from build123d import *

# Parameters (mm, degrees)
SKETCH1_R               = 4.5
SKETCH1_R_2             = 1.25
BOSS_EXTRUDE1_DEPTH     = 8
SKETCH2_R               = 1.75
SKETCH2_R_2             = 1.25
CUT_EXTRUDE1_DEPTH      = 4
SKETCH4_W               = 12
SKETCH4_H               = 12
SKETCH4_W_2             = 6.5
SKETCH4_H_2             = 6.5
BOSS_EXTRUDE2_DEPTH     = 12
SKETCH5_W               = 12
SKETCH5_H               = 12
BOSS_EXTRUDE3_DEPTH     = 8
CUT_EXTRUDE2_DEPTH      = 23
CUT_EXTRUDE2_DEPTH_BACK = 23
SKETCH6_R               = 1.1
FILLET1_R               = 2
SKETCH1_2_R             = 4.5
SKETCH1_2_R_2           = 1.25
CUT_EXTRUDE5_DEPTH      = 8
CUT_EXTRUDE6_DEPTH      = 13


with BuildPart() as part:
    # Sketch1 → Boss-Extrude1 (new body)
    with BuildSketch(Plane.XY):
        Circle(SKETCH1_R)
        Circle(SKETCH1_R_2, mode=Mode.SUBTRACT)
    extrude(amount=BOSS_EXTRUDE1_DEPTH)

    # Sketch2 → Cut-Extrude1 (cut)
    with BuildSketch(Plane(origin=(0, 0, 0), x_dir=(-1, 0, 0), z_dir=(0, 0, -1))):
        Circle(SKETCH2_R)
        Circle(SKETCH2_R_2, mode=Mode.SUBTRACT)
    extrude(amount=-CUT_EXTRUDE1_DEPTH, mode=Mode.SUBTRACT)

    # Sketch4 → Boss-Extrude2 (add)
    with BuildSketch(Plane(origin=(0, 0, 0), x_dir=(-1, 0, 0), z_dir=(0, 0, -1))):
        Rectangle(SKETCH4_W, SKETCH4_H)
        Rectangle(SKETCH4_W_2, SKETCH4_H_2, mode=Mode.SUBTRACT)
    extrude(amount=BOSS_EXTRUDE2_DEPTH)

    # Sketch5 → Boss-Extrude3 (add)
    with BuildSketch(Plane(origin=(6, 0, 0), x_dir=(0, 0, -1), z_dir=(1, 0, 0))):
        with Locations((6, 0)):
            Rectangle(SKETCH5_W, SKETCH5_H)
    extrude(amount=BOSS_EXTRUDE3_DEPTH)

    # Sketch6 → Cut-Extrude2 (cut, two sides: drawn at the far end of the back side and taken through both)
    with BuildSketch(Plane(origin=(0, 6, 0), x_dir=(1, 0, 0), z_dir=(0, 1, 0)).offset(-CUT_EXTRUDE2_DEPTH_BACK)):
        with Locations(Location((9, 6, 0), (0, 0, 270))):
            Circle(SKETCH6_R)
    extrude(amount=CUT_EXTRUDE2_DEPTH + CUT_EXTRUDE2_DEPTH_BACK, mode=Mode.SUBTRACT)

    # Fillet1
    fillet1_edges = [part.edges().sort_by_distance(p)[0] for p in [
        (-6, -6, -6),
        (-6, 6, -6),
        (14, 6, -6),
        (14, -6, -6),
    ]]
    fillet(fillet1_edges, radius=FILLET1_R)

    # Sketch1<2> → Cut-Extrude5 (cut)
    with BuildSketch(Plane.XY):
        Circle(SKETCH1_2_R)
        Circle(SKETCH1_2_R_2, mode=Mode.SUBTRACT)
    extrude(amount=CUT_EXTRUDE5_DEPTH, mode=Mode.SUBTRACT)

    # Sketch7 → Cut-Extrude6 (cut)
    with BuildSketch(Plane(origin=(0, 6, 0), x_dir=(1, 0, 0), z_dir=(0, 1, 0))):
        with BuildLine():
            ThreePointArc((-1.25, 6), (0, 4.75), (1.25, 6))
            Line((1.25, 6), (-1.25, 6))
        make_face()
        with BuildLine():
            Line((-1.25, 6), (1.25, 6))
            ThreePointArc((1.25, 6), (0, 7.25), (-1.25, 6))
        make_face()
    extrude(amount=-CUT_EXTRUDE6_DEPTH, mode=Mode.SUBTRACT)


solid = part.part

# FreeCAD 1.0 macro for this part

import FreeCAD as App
import Part
import Sketcher


def edges_at(feature, points):
    """Names of the edges that pass closest to the given points."""
    edges = feature.Shape.Edges
    near = lambda p: min(range(len(edges)), key=lambda i: edges[i].distToShape(Part.Vertex(*p))[0])
    return sorted({f"Edge{near(p) + 1}" for p in points})

doc = App.newDocument("Part")
body = doc.addObject("PartDesign::Body", "Body")

# Sketch on XY plane
sketch1 = doc.addObject("Sketcher::SketchObject", "Sketch")
body.addObject(sketch1)
sketch1.AttachmentSupport = (doc.XY_Plane, [""])
sketch1.MapMode = "FlatFace"
sketch1.addGeometry(Part.Circle(App.Vector(0, 0, 0), App.Vector(0, 0, 1), 4.5), False)
sketch1.addGeometry(Part.Circle(App.Vector(0, 0, 0), App.Vector(0, 0, 1), 1.2), False)
sketch1.addConstraint(Sketcher.Constraint("Coincident", 0, 3, -1, 1))
sketch1.addConstraint(Sketcher.Constraint("Coincident", 1, 3, -1, 1))
sketch1.addConstraint(Sketcher.Constraint("Diameter", 0, 9.0))
sketch1.addConstraint(Sketcher.Constraint("Diameter", 1, 2.5))
pad1 = doc.addObject("PartDesign::Pad", "Pad")
body.addObject(pad1)
pad1.Profile = sketch1
pad1.Length = 8

# Sketch on XY plane
sketch2 = doc.addObject("Sketcher::SketchObject", "Sketch001")
body.addObject(sketch2)
sketch2.AttachmentSupport = (doc.XY_Plane, [""])
sketch2.MapMode = "FlatFace"
sketch2.addGeometry(Part.Circle(App.Vector(0, 0, 0), App.Vector(0, 0, 1), 1.8), False)
sketch2.addGeometry(Part.Circle(App.Vector(0, 0, 0), App.Vector(0, 0, 1), 1.2), False)
sketch2.addConstraint(Sketcher.Constraint("Coincident", 0, 3, -1, 1))
sketch2.addConstraint(Sketcher.Constraint("Coincident", 1, 3, -1, 1))
sketch2.addConstraint(Sketcher.Constraint("Diameter", 0, 3.5))
sketch2.addConstraint(Sketcher.Constraint("Diameter", 1, 2.5))
pocket1 = doc.addObject("PartDesign::Pocket", "Pocket")
body.addObject(pocket1)
pocket1.Profile = sketch2
pocket1.Length = 4
pocket1.Reversed = True

# Sketch on XY plane
sketch3 = doc.addObject("Sketcher::SketchObject", "Sketch002")
body.addObject(sketch3)
sketch3.AttachmentSupport = (doc.XY_Plane, [""])
sketch3.MapMode = "FlatFace"
sketch3.addGeometry(Part.LineSegment(App.Vector(6, 6, 0), App.Vector(6, -6, 0)), False)
sketch3.addGeometry(Part.LineSegment(App.Vector(6, -6, 0), App.Vector(-6, -6, 0)), False)
sketch3.addGeometry(Part.LineSegment(App.Vector(-6, -6, 0), App.Vector(-6, 6, 0)), False)
sketch3.addGeometry(Part.LineSegment(App.Vector(-6, 6, 0), App.Vector(6, 6, 0)), False)
sketch3.addGeometry(Part.LineSegment(App.Vector(-3, -3, 0), App.Vector(3, -3, 0)), False)
sketch3.addGeometry(Part.LineSegment(App.Vector(3, -3, 0), App.Vector(3, 3, 0)), False)
sketch3.addGeometry(Part.LineSegment(App.Vector(3, 3, 0), App.Vector(-3, 3, 0)), False)
sketch3.addGeometry(Part.LineSegment(App.Vector(-3, 3, 0), App.Vector(-3, -3, 0)), False)
sketch3.addConstraint(Sketcher.Constraint("Coincident", 0, 2, 1, 1))
sketch3.addConstraint(Sketcher.Constraint("Coincident", 1, 2, 2, 1))
sketch3.addConstraint(Sketcher.Constraint("Coincident", 2, 2, 3, 1))
sketch3.addConstraint(Sketcher.Constraint("Coincident", 3, 2, 0, 1))
sketch3.addConstraint(Sketcher.Constraint("Coincident", 4, 2, 5, 1))
sketch3.addConstraint(Sketcher.Constraint("Coincident", 5, 2, 6, 1))
sketch3.addConstraint(Sketcher.Constraint("Coincident", 6, 2, 7, 1))
sketch3.addConstraint(Sketcher.Constraint("Coincident", 7, 2, 4, 1))
sketch3.addConstraint(Sketcher.Constraint("Vertical", 0))
sketch3.addConstraint(Sketcher.Constraint("Horizontal", 1))
sketch3.addConstraint(Sketcher.Constraint("Vertical", 2))
sketch3.addConstraint(Sketcher.Constraint("Horizontal", 3))
sketch3.addConstraint(Sketcher.Constraint("Horizontal", 4))
sketch3.addConstraint(Sketcher.Constraint("Vertical", 5))
sketch3.addConstraint(Sketcher.Constraint("Horizontal", 6))
sketch3.addConstraint(Sketcher.Constraint("Vertical", 7))
sketch3.addConstraint(Sketcher.Constraint("Symmetric", 0, 2, 2, 2, -1, 1))
sketch3.addConstraint(Sketcher.Constraint("Symmetric", 4, 2, 6, 2, -1, 1))
sketch3.addConstraint(Sketcher.Constraint("Equal", 3, 0))
sketch3.addConstraint(Sketcher.Constraint("Equal", 6, 5))
sketch3.addConstraint(Sketcher.Constraint("DistanceX", 1, 2, 1, 1, 12.0))
sketch3.addConstraint(Sketcher.Constraint("DistanceX", 4, 1, 4, 2, 6.5))
pad2 = doc.addObject("PartDesign::Pad", "Pad001")
body.addObject(pad2)
pad2.Profile = sketch3
pad2.Length = 12
pad2.Reversed = True

# Sketch on YZ plane
sketch4 = doc.addObject("Sketcher::SketchObject", "Sketch003")
body.addObject(sketch4)
sketch4.AttachmentSupport = (doc.YZ_Plane, [""])
sketch4.MapMode = "FlatFace"
sketch4.AttachmentOffset = App.Placement(App.Vector(0, 0, 6), App.Rotation())
sketch4.addGeometry(Part.LineSegment(App.Vector(6, 0, 0), App.Vector(-6, 0, 0)), False)
sketch4.addGeometry(Part.LineSegment(App.Vector(-6, 0, 0), App.Vector(-6, -12, 0)), False)
sketch4.addGeometry(Part.LineSegment(App.Vector(-6, -12, 0), App.Vector(6, -12, 0)), False)
sketch4.addGeometry(Part.LineSegment(App.Vector(6, -12, 0), App.Vector(6, 0, 0)), False)
sketch4.addConstraint(Sketcher.Constraint("Coincident", 0, 2, 1, 1))
sketch4.addConstraint(Sketcher.Constraint("Coincident", 1, 2, 2, 1))
sketch4.addConstraint(Sketcher.Constraint("Coincident", 2, 2, 3, 1))
sketch4.addConstraint(Sketcher.Constraint("Coincident", 3, 2, 0, 1))
sketch4.addConstraint(Sketcher.Constraint("Horizontal", 0))
sketch4.addConstraint(Sketcher.Constraint("Vertical", 1))
sketch4.addConstraint(Sketcher.Constraint("Horizontal", 2))
sketch4.addConstraint(Sketcher.Constraint("Vertical", 3))
sketch4.addConstraint(Sketcher.Constraint("Symmetric", 0, 2, 3, 2, -1, 1))
sketch4.addConstraint(Sketcher.Constraint("Equal", 2, 1))
sketch4.addConstraint(Sketcher.Constraint("DistanceX", 0, 2, 0, 1, 12.0))
pad3 = doc.addObject("PartDesign::Pad", "Pad002")
body.addObject(pad3)
pad3.Profile = sketch4
pad3.Length = 8

# Sketch on XZ plane
sketch5 = doc.addObject("Sketcher::SketchObject", "Sketch004")
body.addObject(sketch5)
sketch5.AttachmentSupport = (doc.XZ_Plane, [""])
sketch5.MapMode = "FlatFace"
sketch5.AttachmentOffset = App.Placement(App.Vector(0, 0, -6), App.Rotation())
sketch5.addGeometry(Part.Circle(App.Vector(9, -6, 0), App.Vector(0, 0, 1), 1.1), False)
sketch5.addConstraint(Sketcher.Constraint("Diameter", 0, 2.2))
sketch5.addConstraint(Sketcher.Constraint("DistanceX", -1, 1, 0, 3, 9.0))
sketch5.addConstraint(Sketcher.Constraint("DistanceY", 0, 3, -1, 1, 6.0))
pocket2 = doc.addObject("PartDesign::Pocket", "Pocket001")
body.addObject(pocket2)
pocket2.Profile = sketch5
pocket2.Type = "ThroughAll"
pocket2.Midplane = True
doc.recompute()

fillet = doc.addObject("PartDesign::Fillet", "Fillet")
body.addObject(fillet)
fillet.Base = (pocket2, edges_at(pocket2, [
    (-6, -6, -6),
    (-6, 6, -6),
    (14, 6, -6),
    (14, -6, -6),
]))
fillet.Radius = 2

# Sketch on XY plane
sketch6 = doc.addObject("Sketcher::SketchObject", "Sketch005")
body.addObject(sketch6)
sketch6.AttachmentSupport = (doc.XY_Plane, [""])
sketch6.MapMode = "FlatFace"
sketch6.addGeometry(Part.Circle(App.Vector(0, 0, 0), App.Vector(0, 0, 1), 4.5), False)
sketch6.addGeometry(Part.Circle(App.Vector(0, 0, 0), App.Vector(0, 0, 1), 1.2), False)
sketch6.addConstraint(Sketcher.Constraint("Coincident", 0, 3, -1, 1))
sketch6.addConstraint(Sketcher.Constraint("Coincident", 1, 3, -1, 1))
sketch6.addConstraint(Sketcher.Constraint("Diameter", 0, 9.0))
sketch6.addConstraint(Sketcher.Constraint("Diameter", 1, 2.5))
pocket3 = doc.addObject("PartDesign::Pocket", "Pocket002")
body.addObject(pocket3)
pocket3.Profile = sketch6
pocket3.Length = 8
pocket3.Reversed = True

# Sketch on XZ plane
sketch7 = doc.addObject("Sketcher::SketchObject", "Sketch006")
body.addObject(sketch7)
sketch7.AttachmentSupport = (doc.XZ_Plane, [""])
sketch7.MapMode = "FlatFace"
sketch7.AttachmentOffset = App.Placement(App.Vector(0, 0, -6), App.Rotation())
sketch7.addGeometry(Part.Circle(App.Vector(0, -6, 0), App.Vector(0, 0, 1), 1.2), False)
sketch7.addConstraint(Sketcher.Constraint("PointOnObject", 0, 3, -2))
sketch7.addConstraint(Sketcher.Constraint("Diameter", 0, 2.5))
sketch7.addConstraint(Sketcher.Constraint("DistanceY", 0, 3, -1, 1, 6.0))
pocket4 = doc.addObject("PartDesign::Pocket", "Pocket003")
body.addObject(pocket4)
pocket4.Profile = sketch7
pocket4.Length = 13
pocket4.Reversed = True

doc.recompute()
